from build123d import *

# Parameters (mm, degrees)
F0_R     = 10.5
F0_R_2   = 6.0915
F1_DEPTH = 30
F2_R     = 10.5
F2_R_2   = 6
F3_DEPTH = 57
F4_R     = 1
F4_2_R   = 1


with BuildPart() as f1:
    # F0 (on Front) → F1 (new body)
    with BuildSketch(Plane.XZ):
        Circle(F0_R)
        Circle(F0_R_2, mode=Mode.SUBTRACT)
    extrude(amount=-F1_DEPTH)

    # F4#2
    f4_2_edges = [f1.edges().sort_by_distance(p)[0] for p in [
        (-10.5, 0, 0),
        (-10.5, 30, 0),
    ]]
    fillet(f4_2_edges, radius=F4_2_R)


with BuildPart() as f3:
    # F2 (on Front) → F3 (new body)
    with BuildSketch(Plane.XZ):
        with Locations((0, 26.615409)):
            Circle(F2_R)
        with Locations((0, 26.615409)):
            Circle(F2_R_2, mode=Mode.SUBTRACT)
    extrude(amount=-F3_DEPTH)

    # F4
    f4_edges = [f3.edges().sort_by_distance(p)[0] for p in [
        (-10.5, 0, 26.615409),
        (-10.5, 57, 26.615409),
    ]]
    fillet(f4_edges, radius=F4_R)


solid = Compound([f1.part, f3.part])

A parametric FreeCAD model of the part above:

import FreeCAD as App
import Part
import Sketcher
Q = App.Units.Quantity


def edges_at(feature, points):
    """Names of the edges that pass closest to the given points."""
    edges = feature.Shape.Edges
    near = lambda p: min(range(len(edges)), key=lambda i: edges[i].distToShape(Part.Vertex(*p))[0])
    return sorted({f"Edge{near(p) + 1}" for p in points})

doc = App.newDocument("Part")
body = doc.addObject("PartDesign::Body", "Body")

# Sketch on XZ plane
sketch1 = body.newObject("Sketcher::SketchObject", "Sketch")
sketch1.AttachmentSupport = (doc.getObject("XZ_Plane"), [""])
sketch1.MapMode = "FlatFace"
sketch1.addGeometry(Part.Circle(App.Vector(0, 0, 0), App.Vector(0, 0, 1), 10), False)
sketch1.addGeometry(Part.Circle(App.Vector(0, 0, 0), App.Vector(0, 0, 1), 6), False)
sketch1.addConstraint(Sketcher.Constraint("Coincident", 0, 3, -1, 1))
sketch1.addConstraint(Sketcher.Constraint("Coincident", 1, 3, -1, 1))
sketch1.addConstraint(Sketcher.Constraint("Diameter", 0, Q("21 mm")))
sketch1.addConstraint(Sketcher.Constraint("Diameter", 1, Q("12.183 mm")))
pad1 = body.newObject("PartDesign::Pad", "Pad")
pad1.Profile = sketch1
pad1.Length = 30
pad1.Reversed = True
doc.recompute()

fillet = body.newObject("PartDesign::Fillet", "Fillet")
fillet.Base = (pad1, edges_at(pad1, [(-10.5, 0, 0), (-10.5, 30, 0)]))
fillet.Radius = 1
body2 = doc.addObject("PartDesign::Body", "Body001")

# Sketch on XZ plane
sketch2 = body2.newObject("Sketcher::SketchObject", "Sketch001")
sketch2.AttachmentSupport = (doc.getObject("XZ_Plane001"), [""])
sketch2.MapMode = "FlatFace"
sketch2.addGeometry(Part.Circle(App.Vector(0, 27, 0), App.Vector(0, 0, 1), 10), False)
sketch2.addGeometry(Part.Circle(App.Vector(0, 27, 0), App.Vector(0, 0, 1), 6), False)
sketch2.addConstraint(Sketcher.Constraint("Coincident", 1, 3, 0, 3))
sketch2.addConstraint(Sketcher.Constraint("PointOnObject", 0, 3, -2))
sketch2.addConstraint(Sketcher.Constraint("Diameter", 0, Q("21 mm")))
sketch2.addConstraint(Sketcher.Constraint("Diameter", 1, Q("12 mm")))
sketch2.addConstraint(Sketcher.Constraint("DistanceY", -1, 1, 0, 3, Q("26.615409 mm")))
pad2 = body2.newObject("PartDesign::Pad", "Pad001")
pad2.Profile = sketch2
pad2.Length = 57
pad2.Reversed = True
doc.recompute()

fillet2 = body2.newObject("PartDesign::Fillet", "Fillet001")
fillet2.Base = (pad2, edges_at(pad2, [(-10.5, 0, 26.615), (-10.5, 57, 26.615)]))
fillet2.Radius = 1

doc.recompute()
